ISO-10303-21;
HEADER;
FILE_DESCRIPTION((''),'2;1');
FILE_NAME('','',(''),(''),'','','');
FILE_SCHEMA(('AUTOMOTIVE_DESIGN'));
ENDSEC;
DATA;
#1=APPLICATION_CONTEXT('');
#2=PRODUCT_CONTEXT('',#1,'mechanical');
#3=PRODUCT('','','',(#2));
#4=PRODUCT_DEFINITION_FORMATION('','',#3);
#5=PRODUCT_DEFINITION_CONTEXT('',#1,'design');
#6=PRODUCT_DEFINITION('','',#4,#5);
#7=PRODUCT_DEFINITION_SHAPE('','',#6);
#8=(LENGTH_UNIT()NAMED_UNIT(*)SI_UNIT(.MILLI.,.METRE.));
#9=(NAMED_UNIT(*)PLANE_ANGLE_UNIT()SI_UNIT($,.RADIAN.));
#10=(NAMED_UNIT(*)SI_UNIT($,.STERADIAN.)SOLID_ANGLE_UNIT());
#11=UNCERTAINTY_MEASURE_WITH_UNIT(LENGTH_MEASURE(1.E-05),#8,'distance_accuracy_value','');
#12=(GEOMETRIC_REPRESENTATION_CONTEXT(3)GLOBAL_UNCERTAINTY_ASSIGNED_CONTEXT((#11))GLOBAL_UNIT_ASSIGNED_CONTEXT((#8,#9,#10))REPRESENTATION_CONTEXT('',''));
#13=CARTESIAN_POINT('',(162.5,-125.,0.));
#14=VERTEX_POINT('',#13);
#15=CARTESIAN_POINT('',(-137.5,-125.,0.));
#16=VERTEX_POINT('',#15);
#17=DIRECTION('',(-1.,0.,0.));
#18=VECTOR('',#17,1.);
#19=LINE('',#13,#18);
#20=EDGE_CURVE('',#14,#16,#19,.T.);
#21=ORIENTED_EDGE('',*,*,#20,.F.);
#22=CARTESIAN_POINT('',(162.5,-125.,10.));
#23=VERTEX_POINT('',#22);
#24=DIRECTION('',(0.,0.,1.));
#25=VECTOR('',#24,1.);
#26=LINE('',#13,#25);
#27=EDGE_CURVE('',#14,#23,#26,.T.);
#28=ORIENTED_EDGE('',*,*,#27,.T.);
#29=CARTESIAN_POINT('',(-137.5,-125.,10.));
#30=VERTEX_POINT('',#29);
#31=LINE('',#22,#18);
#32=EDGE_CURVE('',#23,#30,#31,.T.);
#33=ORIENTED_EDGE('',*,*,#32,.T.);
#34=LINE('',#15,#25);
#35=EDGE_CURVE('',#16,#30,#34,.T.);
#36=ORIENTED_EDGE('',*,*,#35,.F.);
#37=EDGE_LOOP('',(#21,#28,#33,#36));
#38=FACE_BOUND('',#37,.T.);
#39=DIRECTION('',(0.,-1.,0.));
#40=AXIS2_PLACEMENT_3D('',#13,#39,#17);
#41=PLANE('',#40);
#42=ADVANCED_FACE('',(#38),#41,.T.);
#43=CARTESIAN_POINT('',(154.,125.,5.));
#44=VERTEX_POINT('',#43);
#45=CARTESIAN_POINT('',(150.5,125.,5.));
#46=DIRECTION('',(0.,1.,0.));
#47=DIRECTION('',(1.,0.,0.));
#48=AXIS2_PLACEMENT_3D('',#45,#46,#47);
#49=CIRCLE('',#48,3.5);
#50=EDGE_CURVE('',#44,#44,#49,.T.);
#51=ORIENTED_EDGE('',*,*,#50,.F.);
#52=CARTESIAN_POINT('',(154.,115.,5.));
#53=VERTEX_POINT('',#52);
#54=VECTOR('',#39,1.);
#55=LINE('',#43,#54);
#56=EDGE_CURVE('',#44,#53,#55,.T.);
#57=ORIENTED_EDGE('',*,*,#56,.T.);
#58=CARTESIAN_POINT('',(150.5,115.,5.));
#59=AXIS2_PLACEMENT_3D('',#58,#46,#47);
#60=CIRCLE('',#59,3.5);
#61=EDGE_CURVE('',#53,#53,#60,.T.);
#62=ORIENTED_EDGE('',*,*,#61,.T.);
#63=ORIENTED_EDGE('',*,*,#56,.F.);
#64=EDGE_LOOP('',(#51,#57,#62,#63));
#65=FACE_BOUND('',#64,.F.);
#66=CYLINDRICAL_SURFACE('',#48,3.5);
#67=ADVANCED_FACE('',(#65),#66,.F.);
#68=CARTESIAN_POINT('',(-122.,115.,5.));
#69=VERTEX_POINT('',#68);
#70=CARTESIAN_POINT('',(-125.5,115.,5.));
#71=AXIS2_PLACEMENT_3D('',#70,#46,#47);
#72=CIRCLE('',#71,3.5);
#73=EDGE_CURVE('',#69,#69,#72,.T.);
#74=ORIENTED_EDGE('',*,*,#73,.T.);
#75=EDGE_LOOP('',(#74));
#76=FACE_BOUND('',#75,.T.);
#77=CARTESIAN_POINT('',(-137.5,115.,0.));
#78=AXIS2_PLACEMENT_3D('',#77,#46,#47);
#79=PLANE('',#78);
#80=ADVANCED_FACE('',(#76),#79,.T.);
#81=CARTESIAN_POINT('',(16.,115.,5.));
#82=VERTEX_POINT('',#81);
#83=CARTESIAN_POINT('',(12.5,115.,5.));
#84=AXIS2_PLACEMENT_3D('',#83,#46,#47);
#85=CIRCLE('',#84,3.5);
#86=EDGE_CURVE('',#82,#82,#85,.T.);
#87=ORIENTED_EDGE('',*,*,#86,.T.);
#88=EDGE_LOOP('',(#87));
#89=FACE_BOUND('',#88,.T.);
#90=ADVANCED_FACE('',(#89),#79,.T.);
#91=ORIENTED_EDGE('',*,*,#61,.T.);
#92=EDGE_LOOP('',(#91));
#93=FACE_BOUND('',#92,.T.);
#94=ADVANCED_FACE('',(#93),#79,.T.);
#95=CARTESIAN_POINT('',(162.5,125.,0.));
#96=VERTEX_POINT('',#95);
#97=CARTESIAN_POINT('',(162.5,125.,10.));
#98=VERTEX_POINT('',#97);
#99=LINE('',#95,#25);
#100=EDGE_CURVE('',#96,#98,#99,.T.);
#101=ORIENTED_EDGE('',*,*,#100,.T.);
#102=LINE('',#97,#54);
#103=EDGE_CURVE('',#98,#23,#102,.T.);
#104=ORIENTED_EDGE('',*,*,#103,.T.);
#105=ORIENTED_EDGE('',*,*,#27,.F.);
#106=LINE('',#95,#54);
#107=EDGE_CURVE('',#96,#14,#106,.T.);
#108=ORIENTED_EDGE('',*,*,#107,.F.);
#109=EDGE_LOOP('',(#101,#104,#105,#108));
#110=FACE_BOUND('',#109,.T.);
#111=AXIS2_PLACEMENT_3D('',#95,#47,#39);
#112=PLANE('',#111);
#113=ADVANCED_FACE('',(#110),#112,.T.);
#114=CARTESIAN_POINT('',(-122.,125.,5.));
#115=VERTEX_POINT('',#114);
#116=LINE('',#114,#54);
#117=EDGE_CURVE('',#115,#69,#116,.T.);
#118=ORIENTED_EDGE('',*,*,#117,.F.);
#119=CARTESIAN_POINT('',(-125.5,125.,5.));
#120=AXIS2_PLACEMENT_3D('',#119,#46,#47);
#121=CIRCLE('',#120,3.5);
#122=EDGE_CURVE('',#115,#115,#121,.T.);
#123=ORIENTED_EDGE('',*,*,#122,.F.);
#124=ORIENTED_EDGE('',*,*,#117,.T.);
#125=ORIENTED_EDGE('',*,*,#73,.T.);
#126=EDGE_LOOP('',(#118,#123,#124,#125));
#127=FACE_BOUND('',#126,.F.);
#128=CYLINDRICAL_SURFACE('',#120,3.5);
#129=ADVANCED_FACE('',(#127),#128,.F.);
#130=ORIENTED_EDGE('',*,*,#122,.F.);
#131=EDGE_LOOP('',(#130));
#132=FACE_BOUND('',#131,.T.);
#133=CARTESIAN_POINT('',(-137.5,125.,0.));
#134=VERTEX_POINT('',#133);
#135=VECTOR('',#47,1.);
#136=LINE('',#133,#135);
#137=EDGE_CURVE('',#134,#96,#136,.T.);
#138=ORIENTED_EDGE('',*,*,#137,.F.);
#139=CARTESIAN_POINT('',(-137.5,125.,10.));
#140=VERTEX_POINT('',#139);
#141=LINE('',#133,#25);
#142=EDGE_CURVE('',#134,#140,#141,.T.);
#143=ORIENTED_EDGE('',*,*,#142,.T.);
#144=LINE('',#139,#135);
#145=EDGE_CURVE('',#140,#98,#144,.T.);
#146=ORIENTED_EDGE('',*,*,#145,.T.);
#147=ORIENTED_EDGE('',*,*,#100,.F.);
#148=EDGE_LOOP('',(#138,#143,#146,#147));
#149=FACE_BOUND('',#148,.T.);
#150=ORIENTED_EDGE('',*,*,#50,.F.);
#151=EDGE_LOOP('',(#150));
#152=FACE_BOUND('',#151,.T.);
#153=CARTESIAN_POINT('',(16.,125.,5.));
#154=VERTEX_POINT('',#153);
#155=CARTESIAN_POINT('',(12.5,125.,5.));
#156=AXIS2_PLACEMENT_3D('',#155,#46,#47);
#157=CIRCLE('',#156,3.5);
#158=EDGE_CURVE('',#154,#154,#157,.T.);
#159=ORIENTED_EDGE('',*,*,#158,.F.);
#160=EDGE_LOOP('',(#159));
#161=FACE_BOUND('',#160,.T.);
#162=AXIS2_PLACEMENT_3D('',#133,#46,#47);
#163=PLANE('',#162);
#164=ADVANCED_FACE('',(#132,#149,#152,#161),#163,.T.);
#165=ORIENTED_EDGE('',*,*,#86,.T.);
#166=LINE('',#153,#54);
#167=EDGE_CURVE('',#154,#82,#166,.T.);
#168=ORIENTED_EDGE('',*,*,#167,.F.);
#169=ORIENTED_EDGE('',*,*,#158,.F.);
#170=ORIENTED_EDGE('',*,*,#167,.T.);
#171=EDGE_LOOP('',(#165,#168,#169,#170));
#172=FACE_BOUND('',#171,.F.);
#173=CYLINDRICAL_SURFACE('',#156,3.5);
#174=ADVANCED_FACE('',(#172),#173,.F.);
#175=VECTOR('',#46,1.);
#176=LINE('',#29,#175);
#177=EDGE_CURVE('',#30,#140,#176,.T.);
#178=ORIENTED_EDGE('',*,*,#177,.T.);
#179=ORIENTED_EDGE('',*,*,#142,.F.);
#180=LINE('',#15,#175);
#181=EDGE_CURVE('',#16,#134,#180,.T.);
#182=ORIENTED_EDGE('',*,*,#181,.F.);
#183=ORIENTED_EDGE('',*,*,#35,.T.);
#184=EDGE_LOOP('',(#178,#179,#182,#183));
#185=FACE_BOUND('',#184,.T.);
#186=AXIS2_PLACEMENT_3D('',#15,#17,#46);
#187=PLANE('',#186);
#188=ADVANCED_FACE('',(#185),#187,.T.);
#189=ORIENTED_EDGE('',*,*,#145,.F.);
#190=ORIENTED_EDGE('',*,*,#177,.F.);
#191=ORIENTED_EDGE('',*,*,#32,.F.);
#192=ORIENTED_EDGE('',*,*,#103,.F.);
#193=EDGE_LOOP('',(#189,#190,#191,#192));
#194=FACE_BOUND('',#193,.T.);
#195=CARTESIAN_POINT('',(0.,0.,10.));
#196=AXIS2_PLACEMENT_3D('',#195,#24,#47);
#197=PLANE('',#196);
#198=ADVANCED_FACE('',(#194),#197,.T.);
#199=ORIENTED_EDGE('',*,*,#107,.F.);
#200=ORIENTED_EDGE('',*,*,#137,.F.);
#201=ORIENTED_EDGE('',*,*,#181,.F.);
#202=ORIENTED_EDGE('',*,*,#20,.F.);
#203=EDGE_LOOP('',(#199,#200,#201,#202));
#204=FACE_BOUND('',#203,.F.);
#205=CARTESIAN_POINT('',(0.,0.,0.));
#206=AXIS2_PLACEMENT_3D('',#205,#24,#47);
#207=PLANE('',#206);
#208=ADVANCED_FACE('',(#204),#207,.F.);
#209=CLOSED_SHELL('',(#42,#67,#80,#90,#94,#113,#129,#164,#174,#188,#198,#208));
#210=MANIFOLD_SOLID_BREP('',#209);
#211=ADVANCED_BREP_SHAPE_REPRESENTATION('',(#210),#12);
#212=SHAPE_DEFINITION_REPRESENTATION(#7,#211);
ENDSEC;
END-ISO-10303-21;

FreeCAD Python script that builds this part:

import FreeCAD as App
import Part
import Sketcher
from FreeCAD import Vector


def add_polygon(sketch, points):
    """Adds a closed chain of lines whose ends are joined by coincident constraints."""
    first, n = sketch.GeometryCount, len(points)
    for a, b in zip(points, points[1:] + points[:1]):
        sketch.addGeometry(Part.LineSegment(App.Vector(*a, 0), App.Vector(*b, 0)), False)
    for i in range(n):
        sketch.addConstraint(Sketcher.Constraint("Coincident", first + i, 2, first + (i + 1) % n, 1))

doc = App.newDocument("Part")
body = doc.addObject("PartDesign::Body", "Body")

# Sketch on XY plane
sketch1 = doc.addObject("Sketcher::SketchObject", "Sketch")
body.addObject(sketch1)
sketch1.AttachmentSupport = (doc.XY_Plane, [""])
sketch1.MapMode = "FlatFace"
add_polygon(sketch1, [(162.5, 125), (-137.5, 125), (-137.5, -125), (162.5, -125)])  # lines 0-3
sketch1.addConstraint(Sketcher.Constraint("Horizontal", 0))
sketch1.addConstraint(Sketcher.Constraint("Vertical", 1))
sketch1.addConstraint(Sketcher.Constraint("Horizontal", 2))
sketch1.addConstraint(Sketcher.Constraint("Vertical", 3))
sketch1.addConstraint(Sketcher.Constraint("DistanceX", 0, 2, 0, 1, 300.0))
sketch1.addConstraint(Sketcher.Constraint("DistanceY", 1, 2, 1, 1, 250.0))
sketch1.addConstraint(Sketcher.Constraint("DistanceY", -1, 1, 0, 2, 125.0))
sketch1.addConstraint(Sketcher.Constraint("DistanceX", -1, 1, 2, 2, 162.5))
pad1 = doc.addObject("PartDesign::Pad", "Pad")
body.addObject(pad1)
pad1.Profile = sketch1
pad1.Length = 10

# Sketch on XZ plane
sketch2 = doc.addObject("Sketcher::SketchObject", "Sketch001")
body.addObject(sketch2)
sketch2.AttachmentSupport = (doc.XZ_Plane, [""])
sketch2.MapMode = "FlatFace"
sketch2.AttachmentOffset = App.Placement(Vector(0, 0, -125), App.Rotation())
sketch2.addGeometry(Part.Circle(Vector(150.5, 5, 0), Vector(0, 0, 1), 3.5), False)
sketch2.addGeometry(Part.Circle(Vector(12.5, 5, 0), Vector(0, 0, 1), 3.5), False)
sketch2.addGeometry(Part.Circle(Vector(-125.5, 5, 0), Vector(0, 0, 1), 3.5), False)
sketch2.addConstraint(Sketcher.Constraint("Equal", 0, 1))
sketch2.addConstraint(Sketcher.Constraint("Equal", 1, 2))
sketch2.addConstraint(Sketcher.Constraint("Horizontal", 0, 3, 1, 3))
sketch2.addConstraint(Sketcher.Constraint("Horizontal", 1, 3, 2, 3))
sketch2.addConstraint(Sketcher.Constraint("Diameter", 0, 7.0))
sketch2.addConstraint(Sketcher.Constraint("DistanceY", -1, 1, 0, 3, 5.0))
sketch2.addConstraint(Sketcher.Constraint("DistanceX", 1, 3, 0, 3, 138.0))
sketch2.addConstraint(Sketcher.Constraint("DistanceX", 2, 3, 1, 3, 138.0))
sketch2.addConstraint(Sketcher.Constraint("DistanceX", -1, 1, 0, 3, 150.5))
pocket1 = doc.addObject("PartDesign::Pocket", "Pocket")
body.addObject(pocket1)
pocket1.Profile = sketch2
pocket1.Length = 10
pocket1.Reversed = True

doc.recompute()
